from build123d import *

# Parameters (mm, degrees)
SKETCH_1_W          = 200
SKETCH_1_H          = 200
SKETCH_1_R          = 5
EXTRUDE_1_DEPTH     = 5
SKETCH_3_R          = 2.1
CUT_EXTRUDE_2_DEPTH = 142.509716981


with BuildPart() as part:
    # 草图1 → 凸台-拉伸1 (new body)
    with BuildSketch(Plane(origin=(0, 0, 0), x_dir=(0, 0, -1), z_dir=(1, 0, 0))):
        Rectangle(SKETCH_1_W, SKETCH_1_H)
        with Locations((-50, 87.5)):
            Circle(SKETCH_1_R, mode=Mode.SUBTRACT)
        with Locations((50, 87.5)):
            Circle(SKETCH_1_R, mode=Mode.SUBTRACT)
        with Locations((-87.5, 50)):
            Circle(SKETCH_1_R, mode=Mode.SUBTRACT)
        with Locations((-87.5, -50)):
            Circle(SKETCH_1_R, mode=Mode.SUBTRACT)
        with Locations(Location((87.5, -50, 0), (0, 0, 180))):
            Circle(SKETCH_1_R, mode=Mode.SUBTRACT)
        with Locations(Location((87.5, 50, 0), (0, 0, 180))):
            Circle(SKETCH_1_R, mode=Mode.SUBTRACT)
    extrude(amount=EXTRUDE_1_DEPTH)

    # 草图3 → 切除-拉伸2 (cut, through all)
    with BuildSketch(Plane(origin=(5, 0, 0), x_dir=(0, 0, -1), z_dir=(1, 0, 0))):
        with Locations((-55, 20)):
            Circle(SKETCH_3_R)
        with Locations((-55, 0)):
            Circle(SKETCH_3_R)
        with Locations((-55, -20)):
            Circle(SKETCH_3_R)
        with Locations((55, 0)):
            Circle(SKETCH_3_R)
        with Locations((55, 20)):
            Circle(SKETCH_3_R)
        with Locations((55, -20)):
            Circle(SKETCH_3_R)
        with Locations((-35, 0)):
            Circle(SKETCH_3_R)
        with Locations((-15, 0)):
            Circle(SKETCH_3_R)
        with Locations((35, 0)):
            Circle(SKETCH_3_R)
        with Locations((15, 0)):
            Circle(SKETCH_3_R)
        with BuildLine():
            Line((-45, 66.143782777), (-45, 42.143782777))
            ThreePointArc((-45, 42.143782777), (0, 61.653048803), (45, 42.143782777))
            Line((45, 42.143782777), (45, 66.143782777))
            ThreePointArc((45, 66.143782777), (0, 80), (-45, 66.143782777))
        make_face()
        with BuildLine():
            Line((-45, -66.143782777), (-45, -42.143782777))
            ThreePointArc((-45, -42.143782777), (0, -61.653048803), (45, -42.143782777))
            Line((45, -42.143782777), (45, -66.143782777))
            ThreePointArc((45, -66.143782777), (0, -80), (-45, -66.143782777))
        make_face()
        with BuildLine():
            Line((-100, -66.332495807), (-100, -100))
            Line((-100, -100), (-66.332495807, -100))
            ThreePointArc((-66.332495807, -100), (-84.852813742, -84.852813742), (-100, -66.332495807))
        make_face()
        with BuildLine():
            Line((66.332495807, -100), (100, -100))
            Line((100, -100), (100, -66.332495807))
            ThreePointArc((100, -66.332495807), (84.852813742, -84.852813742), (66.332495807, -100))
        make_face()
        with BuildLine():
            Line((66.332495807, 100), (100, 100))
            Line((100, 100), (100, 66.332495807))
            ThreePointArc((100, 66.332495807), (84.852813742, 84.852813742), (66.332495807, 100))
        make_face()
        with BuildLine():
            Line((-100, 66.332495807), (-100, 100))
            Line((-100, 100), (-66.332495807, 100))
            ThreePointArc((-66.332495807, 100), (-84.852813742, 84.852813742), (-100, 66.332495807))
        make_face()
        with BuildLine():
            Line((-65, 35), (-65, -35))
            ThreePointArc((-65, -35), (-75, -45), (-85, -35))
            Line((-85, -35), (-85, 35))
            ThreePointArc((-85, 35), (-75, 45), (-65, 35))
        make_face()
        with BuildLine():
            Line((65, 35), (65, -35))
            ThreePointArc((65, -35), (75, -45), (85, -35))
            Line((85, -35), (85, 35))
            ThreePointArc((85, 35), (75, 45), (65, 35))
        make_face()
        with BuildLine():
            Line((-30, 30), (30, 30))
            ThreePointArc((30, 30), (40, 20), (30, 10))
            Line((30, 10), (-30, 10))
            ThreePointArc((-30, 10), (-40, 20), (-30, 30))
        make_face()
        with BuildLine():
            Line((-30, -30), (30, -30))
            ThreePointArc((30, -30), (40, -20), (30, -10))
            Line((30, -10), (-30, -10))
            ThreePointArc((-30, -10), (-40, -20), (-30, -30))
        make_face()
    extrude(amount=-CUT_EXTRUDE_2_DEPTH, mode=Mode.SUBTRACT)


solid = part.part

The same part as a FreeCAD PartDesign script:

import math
import FreeCAD as App
import Part
import Sketcher

V = App.Vector


def add_polygon(sketch, points):
    """Adds a closed chain of lines whose ends are joined by coincident constraints."""
    first, n = sketch.GeometryCount, len(points)
    for a, b in zip(points, points[1:] + points[:1]):
        sketch.addGeometry(Part.LineSegment(App.Vector(*a, 0), App.Vector(*b, 0)), False)
    for i in range(n):
        sketch.addConstraint(Sketcher.Constraint("Coincident", first + i, 2, first + (i + 1) % n, 1))

doc = App.newDocument("Part")
body = doc.addObject("PartDesign::Body", "Body")

sketch1 = body.newObject("Sketcher::SketchObject", "Sketch")
sketch1.AttachmentSupport = (doc.getObject("YZ_Plane"), [""])
sketch1.MapMode = "FlatFace"
add_polygon(sketch1, [(100, 100), (-100, 100), (-100, -100), (100, -100)])
sketch1.addGeometry(Part.Circle(V(-50, 88, 0), V(0, 0, 1), 5), False)
sketch1.addGeometry(Part.Circle(V(-50, -88, 0), V(0, 0, 1), 5), False)
sketch1.addGeometry(Part.Circle(V(50, 88, 0), V(0, 0, 1), 5), False)
sketch1.addGeometry(Part.Circle(V(88, 50, 0), V(0, 0, 1), 5), False)
sketch1.addGeometry(Part.Circle(V(50, -88, 0), V(0, 0, 1), 5), False)
sketch1.addGeometry(Part.Circle(V(88, -50, 0), V(0, 0, 1), 5), False)
sketch1.addConstraint(Sketcher.Constraint("Horizontal", 0))
sketch1.addConstraint(Sketcher.Constraint("Vertical", 1))
sketch1.addConstraint(Sketcher.Constraint("Horizontal", 2))
sketch1.addConstraint(Sketcher.Constraint("Vertical", 3))
sketch1.addConstraint(Sketcher.Constraint("Equal", 4, 5))
sketch1.addConstraint(Sketcher.Constraint("Equal", 5, 6))
sketch1.addConstraint(Sketcher.Constraint("Equal", 6, 7))
sketch1.addConstraint(Sketcher.Constraint("Equal", 7, 8))
sketch1.addConstraint(Sketcher.Constraint("Equal", 8, 9))
sketch1.addConstraint(Sketcher.Constraint("Symmetric", 5, 3, 6, 3, -1, 1))
sketch1.addConstraint(Sketcher.Constraint("Symmetric", 4, 3, 8, 3, -1, 1))
sketch1.addConstraint(Sketcher.Constraint("Symmetric", 0, 2, 2, 2, -1, 1))
sketch1.addConstraint(Sketcher.Constraint("Symmetric", 4, 3, 6, 3, -2))
sketch1.addConstraint(Sketcher.Constraint("Symmetric", 7, 3, 9, 3, -1))
sketch1.addConstraint(Sketcher.Constraint("Equal", 2, 1))
sketch1.addConstraint(Sketcher.Constraint("Diameter", 4, 10.0))
sketch1.addConstraint(Sketcher.Constraint("DistanceX", 0, 2, 0, 1, 200.0))
sketch1.addConstraint(Sketcher.Constraint("DistanceX", 4, 3, -1, 1, 50.0))
sketch1.addConstraint(Sketcher.Constraint("DistanceY", -1, 1, 7, 3, 50.0))
sketch1.addConstraint(Sketcher.Constraint("DistanceY", 5, 3, 4, 3, 175.0))
sketch1.addConstraint(Sketcher.Constraint("DistanceX", -1, 1, 7, 3, 87.5))
pad1 = body.newObject("PartDesign::Pad", "Pad")
pad1.Profile = sketch1
pad1.Length = 5

sketch2 = body.newObject("Sketcher::SketchObject", "Sketch001")
sketch2.AttachmentSupport = (doc.getObject("YZ_Plane"), [""])
sketch2.MapMode = "FlatFace"
sketch2.AttachmentOffset = App.Placement(V(0, 0, 5), App.Rotation())
sketch2.addGeometry(Part.Circle(V(20, 55, 0), V(0, 0, 1), 2.1), False)
sketch2.addGeometry(Part.Circle(V(0, 55, 0), V(0, 0, 1), 2.1), False)
sketch2.addGeometry(Part.Circle(V(-20, 55, 0), V(0, 0, 1), 2.1), False)
sketch2.addGeometry(Part.Circle(V(0, -55, 0), V(0, 0, 1), 2.1), False)
sketch2.addGeometry(Part.Circle(V(20, -55, 0), V(0, 0, 1), 2.1), False)
sketch2.addGeometry(Part.Circle(V(-20, -55, 0), V(0, 0, 1), 2.1), False)
sketch2.addGeometry(Part.Circle(V(0, 35, 0), V(0, 0, 1), 2.1), False)
sketch2.addGeometry(Part.Circle(V(0, 15, 0), V(0, 0, 1), 2.1), False)
sketch2.addGeometry(Part.Circle(V(0, -35, 0), V(0, 0, 1), 2.1), False)
sketch2.addGeometry(Part.Circle(V(0, -15, 0), V(0, 0, 1), 2.1), False)
sketch2.addGeometry(Part.LineSegment(V(66.1, 45, 0), V(42.1, 45, 0)), False)
sketch2.addGeometry(Part.ArcOfCircle(Part.Circle(V(0, 0, 0), V(0, 0, 1), 61.7), math.radians(-47), math.radians(47)), False)
sketch2.addGeometry(Part.LineSegment(V(42.1, -45, 0), V(66.1, -45, 0)), False)
sketch2.addGeometry(Part.ArcOfCircle(Part.Circle(V(0, 0, 0), V(0, 0, 1), 80), math.radians(-34), math.radians(34)), False)
sketch2.addGeometry(Part.LineSegment(V(-42.1, 45, 0), V(-66.1, 45, 0)), False)
sketch2.addGeometry(Part.ArcOfCircle(Part.Circle(V(0, 0, 0), V(0, 0, 1), 80), math.radians(146), math.radians(214)), False)
sketch2.addGeometry(Part.LineSegment(V(-66.1, -45, 0), V(-42.1, -45, 0)), False)
sketch2.addGeometry(Part.ArcOfCircle(Part.Circle(V(0, 0, 0), V(0, 0, 1), 61.7), math.radians(133), math.radians(227)), False)
sketch2.addGeometry(Part.LineSegment(V(-66.3, 100, 0), V(-100, 100, 0)), False)
sketch2.addGeometry(Part.LineSegment(V(-100, 100, 0), V(-100, 66.3, 0)), False)
sketch2.addGeometry(Part.ArcOfCircle(Part.Circle(V(0, 0, 0), V(0, 0, 1), 120), math.radians(124), math.radians(146)), False)
sketch2.addGeometry(Part.LineSegment(V(-100, -66.3, 0), V(-100, -100, 0)), False)
sketch2.addGeometry(Part.LineSegment(V(-100, -100, 0), V(-66.3, -100, 0)), False)
sketch2.addGeometry(Part.ArcOfCircle(Part.Circle(V(0, 0, 0), V(0, 0, 1), 120), math.radians(-146), math.radians(-124)), False)
sketch2.addGeometry(Part.LineSegment(V(100, -100, 0), V(100, -66.3, 0)), False)
sketch2.addGeometry(Part.ArcOfCircle(Part.Circle(V(0, 0, 0), V(0, 0, 1), 120), math.radians(-56), math.radians(-34)), False)
sketch2.addGeometry(Part.LineSegment(V(66.3, -100, 0), V(100, -100, 0)), False)
sketch2.addGeometry(Part.LineSegment(V(100, 100, 0), V(66.3, 100, 0)), False)
sketch2.addGeometry(Part.ArcOfCircle(Part.Circle(V(0, 0, 0), V(0, 0, 1), 120), math.radians(34), math.radians(56)), False)
sketch2.addGeometry(Part.LineSegment(V(100, 66.3, 0), V(100, 100, 0)), False)
sketch2.addGeometry(Part.LineSegment(V(-35, 65, 0), V(35, 65, 0)), False)
sketch2.addGeometry(Part.ArcOfCircle(Part.Circle(V(35, 75, 0), V(0, 0, 1), 10), math.radians(-90), math.radians(90)), False)
sketch2.addGeometry(Part.LineSegment(V(35, 85, 0), V(-35, 85, 0)), False)
sketch2.addGeometry(Part.ArcOfCircle(Part.Circle(V(-35, 75, 0), V(0, 0, 1), 10), math.radians(90), math.radians(270)), False)
sketch2.addGeometry(Part.LineSegment(V(35, -65, 0), V(-35, -65, 0)), False)
sketch2.addGeometry(Part.ArcOfCircle(Part.Circle(V(-35, -75, 0), V(0, 0, 1), 10), math.radians(90), math.radians(270)), False)
sketch2.addGeometry(Part.LineSegment(V(-35, -85, 0), V(35, -85, 0)), False)
sketch2.addGeometry(Part.ArcOfCircle(Part.Circle(V(35, -75, 0), V(0, 0, 1), 10), math.radians(-90), math.radians(90)), False)
sketch2.addGeometry(Part.LineSegment(V(30, -30, 0), V(30, 30, 0)), False)
sketch2.addGeometry(Part.ArcOfCircle(Part.Circle(V(20, 30, 0), V(0, 0, 1), 10), math.radians(0), math.radians(180)), False)
sketch2.addGeometry(Part.LineSegment(V(10, 30, 0), V(10, -30, 0)), False)
sketch2.addGeometry(Part.ArcOfCircle(Part.Circle(V(20, -30, 0), V(0, 0, 1), 10), math.radians(180), math.radians(360)), False)
sketch2.addGeometry(Part.LineSegment(V(-30, 30, 0), V(-30, -30, 0)), False)
sketch2.addGeometry(Part.ArcOfCircle(Part.Circle(V(-20, -30, 0), V(0, 0, 1), 10), math.radians(180), math.radians(360)), False)
sketch2.addGeometry(Part.LineSegment(V(-10, -30, 0), V(-10, 30, 0)), False)
sketch2.addGeometry(Part.ArcOfCircle(Part.Circle(V(-20, 30, 0), V(0, 0, 1), 10), math.radians(0), math.radians(180)), False)
sketch2.addConstraint(Sketcher.Constraint("Coincident", 10, 2, 11, 2))
sketch2.addConstraint(Sketcher.Constraint("Coincident", 11, 1, 12, 1))
sketch2.addConstraint(Sketcher.Constraint("Coincident", 12, 2, 13, 1))
sketch2.addConstraint(Sketcher.Constraint("Coincident", 13, 2, 10, 1))
sketch2.addConstraint(Sketcher.Constraint("Coincident", 14, 2, 15, 1))
sketch2.addConstraint(Sketcher.Constraint("Coincident", 15, 2, 16, 1))
sketch2.addConstraint(Sketcher.Constraint("Coincident", 16, 2, 17, 2))
sketch2.addConstraint(Sketcher.Constraint("Coincident", 17, 1, 14, 1))
sketch2.addConstraint(Sketcher.Constraint("Coincident", 18, 2, 19, 1))
sketch2.addConstraint(Sketcher.Constraint("Coincident", 19, 2, 20, 2))
sketch2.addConstraint(Sketcher.Constraint("Coincident", 20, 1, 18, 1))
sketch2.addConstraint(Sketcher.Constraint("Coincident", 21, 2, 22, 1))
sketch2.addConstraint(Sketcher.Constraint("Coincident", 22, 2, 23, 2))
sketch2.addConstraint(Sketcher.Constraint("Coincident", 23, 1, 21, 1))
sketch2.addConstraint(Sketcher.Constraint("Coincident", 24, 2, 25, 2))
sketch2.addConstraint(Sketcher.Constraint("Coincident", 25, 1, 26, 1))
sketch2.addConstraint(Sketcher.Constraint("Coincident", 26, 2, 24, 1))
sketch2.addConstraint(Sketcher.Constraint("Coincident", 27, 2, 28, 2))
sketch2.addConstraint(Sketcher.Constraint("Coincident", 28, 1, 29, 1))
sketch2.addConstraint(Sketcher.Constraint("Coincident", 29, 2, 27, 1))
sketch2.addConstraint(Sketcher.Constraint("Tangent", 30, 2, 31, 1))
sketch2.addConstraint(Sketcher.Constraint("Tangent", 31, 2, 32, 1))
sketch2.addConstraint(Sketcher.Constraint("Tangent", 32, 2, 33, 1))
sketch2.addConstraint(Sketcher.Constraint("Tangent", 33, 2, 30, 1))
sketch2.addConstraint(Sketcher.Constraint("Tangent", 34, 2, 35, 1))
sketch2.addConstraint(Sketcher.Constraint("Tangent", 35, 2, 36, 1))
sketch2.addConstraint(Sketcher.Constraint("Tangent", 36, 2, 37, 1))
sketch2.addConstraint(Sketcher.Constraint("Tangent", 37, 2, 34, 1))
sketch2.addConstraint(Sketcher.Constraint("Tangent", 38, 2, 39, 1))
sketch2.addConstraint(Sketcher.Constraint("Tangent", 39, 2, 40, 1))
sketch2.addConstraint(Sketcher.Constraint("Tangent", 40, 2, 41, 1))
sketch2.addConstraint(Sketcher.Constraint("Tangent", 41, 2, 38, 1))
sketch2.addConstraint(Sketcher.Constraint("Tangent", 42, 2, 43, 1))
sketch2.addConstraint(Sketcher.Constraint("Tangent", 43, 2, 44, 1))
sketch2.addConstraint(Sketcher.Constraint("Tangent", 44, 2, 45, 1))
sketch2.addConstraint(Sketcher.Constraint("Tangent", 45, 2, 42, 1))
sketch2.addConstraint(Sketcher.Constraint("Horizontal", 10))
sketch2.addConstraint(Sketcher.Constraint("Horizontal", 12))
sketch2.addConstraint(Sketcher.Constraint("Horizontal", 14))
sketch2.addConstraint(Sketcher.Constraint("Horizontal", 16))
sketch2.addConstraint(Sketcher.Constraint("Horizontal", 18))
sketch2.addConstraint(Sketcher.Constraint("Vertical", 19))
sketch2.addConstraint(Sketcher.Constraint("Vertical", 21))
sketch2.addConstraint(Sketcher.Constraint("Horizontal", 22))
sketch2.addConstraint(Sketcher.Constraint("Vertical", 24))
sketch2.addConstraint(Sketcher.Constraint("Horizontal", 26))
sketch2.addConstraint(Sketcher.Constraint("Horizontal", 27))
sketch2.addConstraint(Sketcher.Constraint("Vertical", 29))
sketch2.addConstraint(Sketcher.Constraint("Horizontal", 30))
sketch2.addConstraint(Sketcher.Constraint("Horizontal", 32))
sketch2.addConstraint(Sketcher.Constraint("Horizontal", 34))
sketch2.addConstraint(Sketcher.Constraint("Horizontal", 36))
sketch2.addConstraint(Sketcher.Constraint("Vertical", 38))
sketch2.addConstraint(Sketcher.Constraint("Vertical", 40))
sketch2.addConstraint(Sketcher.Constraint("Vertical", 42))
sketch2.addConstraint(Sketcher.Constraint("Vertical", 44))
sketch2.addConstraint(Sketcher.Constraint("Coincident", 11, 3, -1, 1))
sketch2.addConstraint(Sketcher.Constraint("Coincident", 13, 3, -1, 1))
sketch2.addConstraint(Sketcher.Constraint("Coincident", 15, 3, -1, 1))
sketch2.addConstraint(Sketcher.Constraint("Coincident", 17, 3, -1, 1))
sketch2.addConstraint(Sketcher.Constraint("Coincident", 20, 3, -1, 1))
sketch2.addConstraint(Sketcher.Constraint("Coincident", 23, 3, -1, 1))
sketch2.addConstraint(Sketcher.Constraint("Coincident", 25, 3, -1, 1))
sketch2.addConstraint(Sketcher.Constraint("Coincident", 28, 3, -1, 1))
sketch2.addConstraint(Sketcher.Constraint("Equal", 0, 1))
sketch2.addConstraint(Sketcher.Constraint("Equal", 1, 2))
sketch2.addConstraint(Sketcher.Constraint("Equal", 2, 3))
sketch2.addConstraint(Sketcher.Constraint("Equal", 3, 4))
sketch2.addConstraint(Sketcher.Constraint("Equal", 4, 5))
sketch2.addConstraint(Sketcher.Constraint("Equal", 5, 6))
sketch2.addConstraint(Sketcher.Constraint("Equal", 6, 7))
sketch2.addConstraint(Sketcher.Constraint("Equal", 7, 8))
sketch2.addConstraint(Sketcher.Constraint("Equal", 8, 9))
sketch2.addConstraint(Sketcher.Constraint("Equal", 13, 15))
sketch2.addConstraint(Sketcher.Constraint("Equal", 11, 17))
sketch2.addConstraint(Sketcher.Constraint("Equal", 20, 23))
sketch2.addConstraint(Sketcher.Constraint("Equal", 23, 25))
sketch2.addConstraint(Sketcher.Constraint("Equal", 25, 28))
sketch2.addConstraint(Sketcher.Constraint("Equal", 33, 35))
sketch2.addConstraint(Sketcher.Constraint("Equal", 37, 39))
sketch2.addConstraint(Sketcher.Constraint("Equal", 41, 43))
sketch2.addConstraint(Sketcher.Constraint("Symmetric", 1, 3, 3, 3, -1, 1))
sketch2.addConstraint(Sketcher.Constraint("Symmetric", 2, 3, 4, 3, -1, 1))
sketch2.addConstraint(Sketcher.Constraint("Symmetric", 0, 3, 5, 3, -1, 1))
sketch2.addConstraint(Sketcher.Constraint("Symmetric", 6, 3, 8, 3, -1, 1))
sketch2.addConstraint(Sketcher.Constraint("Symmetric", 7, 3, 9, 3, -1, 1))
sketch2.addConstraint(Sketcher.Constraint("Symmetric", 31, 3, 35, 3, -1, 1))
sketch2.addConstraint(Sketcher.Constraint("Symmetric", 39, 3, 43, 3, -1, 1))
sketch2.addConstraint(Sketcher.Constraint("Symmetric", 18, 2, 26, 2, -1, 1))
sketch2.addConstraint(Sketcher.Constraint("Symmetric", 21, 2, 29, 2, -1, 1))
sketch2.addConstraint(Sketcher.Constraint("Symmetric", 0, 3, 2, 3, -2))
sketch2.addConstraint(Sketcher.Constraint("Symmetric", 21, 2, 26, 2, -2))
sketch2.addConstraint(Sketcher.Constraint("PointOnObject", 1, 3, -2))
sketch2.addConstraint(Sketcher.Constraint("PointOnObject", 6, 3, -2))
sketch2.addConstraint(Sketcher.Constraint("PointOnObject", 7, 3, -2))
sketch2.addConstraint(Sketcher.Constraint("Horizontal", 0, 3, 1, 3))
sketch2.addConstraint(Sketcher.Constraint("Horizontal", 41, 3, 43, 3))
sketch2.addConstraint(Sketcher.Constraint("Horizontal", 39, 3, 45, 3))
sketch2.addConstraint(Sketcher.Constraint("Horizontal", 13, 2, 14, 2))
sketch2.addConstraint(Sketcher.Constraint("Horizontal", 12, 2, 15, 2))
sketch2.addConstraint(Sketcher.Constraint("Vertical", 33, 3, 35, 3))
sketch2.addConstraint(Sketcher.Constraint("Vertical", 31, 3, 37, 3))
sketch2.addConstraint(Sketcher.Constraint("Vertical", 4, 3, 39, 3))
sketch2.addConstraint(Sketcher.Constraint("Vertical", 10, 2, 11, 1))
sketch2.addConstraint(Sketcher.Constraint("Equal", 27, 19))
sketch2.addConstraint(Sketcher.Constraint("Radius", 13, 80.0))
sketch2.addConstraint(Sketcher.Constraint("Radius", 20, 120.0))
sketch2.addConstraint(Sketcher.Constraint("Radius", 31, 10.0))
sketch2.addConstraint(Sketcher.Constraint("Diameter", 0, 4.2))
sketch2.addConstraint(Sketcher.Constraint("DistanceX", 10, 2, 10, 1, 24.0))
sketch2.addConstraint(Sketcher.Constraint("DistanceX", 30, 1, 30, 2, 70.0))
sketch2.addConstraint(Sketcher.Constraint("DistanceY", 38, 1, 38, 2, 60.0))
sketch2.addConstraint(Sketcher.Constraint("DistanceX", -1, 1, 0, 3, 20.0))
sketch2.addConstraint(Sketcher.Constraint("DistanceY", -1, 1, 0, 3, 55.0))
sketch2.addConstraint(Sketcher.Constraint("DistanceY", -1, 1, 6, 3, 35.0))
sketch2.addConstraint(Sketcher.Constraint("DistanceY", -1, 1, 7, 3, 15.0))
sketch2.addConstraint(Sketcher.Constraint("DistanceY", -1, 1, 31, 3, 75.0))
sketch2.addConstraint(Sketcher.Constraint("DistanceY", -1, 1, 10, 2, 45.0))
sketch2.addConstraint(Sketcher.Constraint("DistanceX", 18, 2, -1, 1, 100.0))
pocket1 = body.newObject("PartDesign::Pocket", "Pocket")
pocket1.Profile = sketch2
pocket1.Type = "ThroughAll"

doc.recompute()
